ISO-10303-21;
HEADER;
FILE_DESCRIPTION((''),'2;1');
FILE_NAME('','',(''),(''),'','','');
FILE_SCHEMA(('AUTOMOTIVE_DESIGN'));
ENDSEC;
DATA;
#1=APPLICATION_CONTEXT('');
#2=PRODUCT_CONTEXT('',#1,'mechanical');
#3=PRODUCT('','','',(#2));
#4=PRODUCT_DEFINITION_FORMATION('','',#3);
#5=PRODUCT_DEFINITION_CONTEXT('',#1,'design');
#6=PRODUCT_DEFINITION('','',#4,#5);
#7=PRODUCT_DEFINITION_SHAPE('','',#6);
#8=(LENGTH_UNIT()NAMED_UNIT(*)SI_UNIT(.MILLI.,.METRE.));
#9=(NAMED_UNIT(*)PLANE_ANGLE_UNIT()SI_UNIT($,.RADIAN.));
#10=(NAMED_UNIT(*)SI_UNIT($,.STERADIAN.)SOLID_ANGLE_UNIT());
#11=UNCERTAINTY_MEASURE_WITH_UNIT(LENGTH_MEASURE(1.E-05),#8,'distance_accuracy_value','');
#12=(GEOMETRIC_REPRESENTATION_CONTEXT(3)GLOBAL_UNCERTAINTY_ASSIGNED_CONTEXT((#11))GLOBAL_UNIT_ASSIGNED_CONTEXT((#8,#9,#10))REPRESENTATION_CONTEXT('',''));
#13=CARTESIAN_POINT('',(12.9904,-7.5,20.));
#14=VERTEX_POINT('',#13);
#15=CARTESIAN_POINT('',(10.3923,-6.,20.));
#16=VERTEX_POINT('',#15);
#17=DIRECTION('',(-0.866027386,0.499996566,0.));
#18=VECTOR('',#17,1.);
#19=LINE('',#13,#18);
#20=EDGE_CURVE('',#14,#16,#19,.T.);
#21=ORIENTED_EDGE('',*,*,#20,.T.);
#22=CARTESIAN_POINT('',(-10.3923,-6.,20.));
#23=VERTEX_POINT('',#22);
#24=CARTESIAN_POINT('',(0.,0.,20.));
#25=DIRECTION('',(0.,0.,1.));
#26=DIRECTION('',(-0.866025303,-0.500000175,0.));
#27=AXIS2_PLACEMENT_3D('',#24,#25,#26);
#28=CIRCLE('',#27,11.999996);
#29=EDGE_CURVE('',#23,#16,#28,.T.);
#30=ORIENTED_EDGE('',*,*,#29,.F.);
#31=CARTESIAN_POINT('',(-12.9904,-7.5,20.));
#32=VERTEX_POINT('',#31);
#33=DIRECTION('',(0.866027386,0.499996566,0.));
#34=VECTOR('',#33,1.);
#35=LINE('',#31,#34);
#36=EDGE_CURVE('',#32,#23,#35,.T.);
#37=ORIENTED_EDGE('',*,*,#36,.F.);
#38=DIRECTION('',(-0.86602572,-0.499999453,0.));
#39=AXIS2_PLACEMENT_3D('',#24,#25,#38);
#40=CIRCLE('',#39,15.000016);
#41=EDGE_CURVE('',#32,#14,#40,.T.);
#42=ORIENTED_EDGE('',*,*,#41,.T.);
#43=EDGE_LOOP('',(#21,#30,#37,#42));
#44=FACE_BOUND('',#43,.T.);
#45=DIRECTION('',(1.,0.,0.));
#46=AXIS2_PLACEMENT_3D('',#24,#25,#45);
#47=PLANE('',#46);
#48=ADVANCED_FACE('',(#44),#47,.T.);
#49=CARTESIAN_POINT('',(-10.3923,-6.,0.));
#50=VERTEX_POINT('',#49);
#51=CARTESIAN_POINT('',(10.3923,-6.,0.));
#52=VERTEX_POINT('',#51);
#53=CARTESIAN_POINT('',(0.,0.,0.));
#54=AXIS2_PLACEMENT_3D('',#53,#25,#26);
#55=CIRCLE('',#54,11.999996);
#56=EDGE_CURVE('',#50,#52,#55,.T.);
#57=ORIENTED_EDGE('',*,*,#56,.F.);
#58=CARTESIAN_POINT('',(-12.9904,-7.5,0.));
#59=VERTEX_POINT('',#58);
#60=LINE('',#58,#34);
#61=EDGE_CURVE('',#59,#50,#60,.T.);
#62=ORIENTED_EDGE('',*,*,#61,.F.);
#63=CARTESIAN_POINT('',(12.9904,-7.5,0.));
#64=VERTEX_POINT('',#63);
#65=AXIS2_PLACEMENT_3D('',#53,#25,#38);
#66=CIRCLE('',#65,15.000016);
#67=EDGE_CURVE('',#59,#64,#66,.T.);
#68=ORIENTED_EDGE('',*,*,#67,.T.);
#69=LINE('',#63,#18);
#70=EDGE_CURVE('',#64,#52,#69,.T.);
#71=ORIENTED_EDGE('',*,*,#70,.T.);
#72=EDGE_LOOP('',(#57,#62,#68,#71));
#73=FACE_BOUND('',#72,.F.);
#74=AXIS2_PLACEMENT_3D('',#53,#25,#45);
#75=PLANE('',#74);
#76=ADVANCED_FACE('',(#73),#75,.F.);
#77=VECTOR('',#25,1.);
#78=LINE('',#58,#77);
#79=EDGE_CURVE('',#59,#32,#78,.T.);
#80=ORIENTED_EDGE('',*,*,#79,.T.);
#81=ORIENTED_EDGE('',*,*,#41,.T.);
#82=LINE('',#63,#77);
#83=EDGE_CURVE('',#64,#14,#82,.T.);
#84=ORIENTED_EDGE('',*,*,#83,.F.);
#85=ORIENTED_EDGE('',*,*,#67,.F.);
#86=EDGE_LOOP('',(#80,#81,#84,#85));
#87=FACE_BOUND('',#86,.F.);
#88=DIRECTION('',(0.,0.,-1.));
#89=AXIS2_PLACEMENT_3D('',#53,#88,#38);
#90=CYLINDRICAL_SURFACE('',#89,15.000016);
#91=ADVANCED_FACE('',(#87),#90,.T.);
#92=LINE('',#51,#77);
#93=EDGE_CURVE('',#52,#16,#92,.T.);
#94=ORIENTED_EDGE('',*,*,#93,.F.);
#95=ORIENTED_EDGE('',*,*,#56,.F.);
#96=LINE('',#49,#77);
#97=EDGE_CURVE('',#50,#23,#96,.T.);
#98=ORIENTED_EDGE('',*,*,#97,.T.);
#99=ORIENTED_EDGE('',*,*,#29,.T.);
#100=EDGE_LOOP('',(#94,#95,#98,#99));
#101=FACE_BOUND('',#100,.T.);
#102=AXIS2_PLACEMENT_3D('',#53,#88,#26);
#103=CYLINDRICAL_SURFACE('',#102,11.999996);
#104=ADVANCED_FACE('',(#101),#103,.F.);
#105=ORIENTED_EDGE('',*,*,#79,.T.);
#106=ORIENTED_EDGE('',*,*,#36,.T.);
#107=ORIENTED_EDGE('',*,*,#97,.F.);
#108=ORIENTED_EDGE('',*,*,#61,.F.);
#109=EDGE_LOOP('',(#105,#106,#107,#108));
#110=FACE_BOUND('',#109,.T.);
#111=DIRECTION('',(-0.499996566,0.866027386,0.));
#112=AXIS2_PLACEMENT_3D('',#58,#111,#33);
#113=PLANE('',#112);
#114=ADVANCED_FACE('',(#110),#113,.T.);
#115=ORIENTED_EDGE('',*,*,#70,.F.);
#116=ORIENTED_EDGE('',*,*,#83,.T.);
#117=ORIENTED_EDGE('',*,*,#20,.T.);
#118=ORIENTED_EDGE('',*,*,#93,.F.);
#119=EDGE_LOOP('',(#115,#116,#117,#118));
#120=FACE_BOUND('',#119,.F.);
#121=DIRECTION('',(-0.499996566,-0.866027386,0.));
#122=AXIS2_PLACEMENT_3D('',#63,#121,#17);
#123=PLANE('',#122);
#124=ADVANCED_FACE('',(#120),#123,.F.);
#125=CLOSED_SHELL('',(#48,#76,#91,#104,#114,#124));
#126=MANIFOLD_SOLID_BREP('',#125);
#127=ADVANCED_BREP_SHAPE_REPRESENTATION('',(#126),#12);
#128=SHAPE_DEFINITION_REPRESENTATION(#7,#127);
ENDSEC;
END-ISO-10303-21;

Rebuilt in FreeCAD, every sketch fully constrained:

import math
import FreeCAD as App
import Part
import Sketcher
from FreeCAD import Vector
Q = App.Units.Quantity

doc = App.newDocument("Part")
params = doc.addObject("Spreadsheet::Sheet", "Params")
for row, (alias, value) in enumerate([
    ("sketch1_radius", "15 mm"),
    ("sketch1_radius2", "12 mm"),
    ("pad1_length", "20 mm"),
], start=1):
    params.set(f"A{row}", alias)
    params.set(f"B{row}", "=" + value)
    params.setAlias(f"B{row}", alias)

body = doc.addObject("PartDesign::Body", "Body")

sketch1 = body.newObject("Sketcher::SketchObject", "Sketch")
sketch1.AttachmentSupport = (doc.getObject("XY_Plane"), [""])
sketch1.MapMode = "FlatFace"
sketch1.addGeometry([
    Part.LineSegment(Vector(-10.4, -6, 0), Vector(-13, -7.5, 0)),
    Part.ArcOfCircle(Part.Circle(Vector(0, 0, 0), Vector(0, 0, 1), 15), math.radians(-150), math.radians(-30)),
    Part.LineSegment(Vector(13, -7.5, 0), Vector(10.4, -6, 0)),
    Part.ArcOfCircle(Part.Circle(Vector(0, 0, 0), Vector(0, 0, 1), 12), math.radians(-150), math.radians(-30)),
], False)
sketch1.addConstraint([
    Sketcher.Constraint("Coincident", 0, 2, 1, 1),
    Sketcher.Constraint("Coincident", 1, 2, 2, 1),
    Sketcher.Constraint("Coincident", 2, 2, 3, 2),
    Sketcher.Constraint("Coincident", 3, 1, 0, 1),
    Sketcher.Constraint("Coincident", 1, 3, -1, 1),
    Sketcher.Constraint("Coincident", 3, 3, -1, 1),
    Sketcher.Constraint("Horizontal", 0, 2, 1, 2),
    Sketcher.Constraint("Horizontal", 2, 2, 3, 1),
    Sketcher.Constraint("Radius", 1, Q("15 mm")),
    Sketcher.Constraint("Radius", 3, Q("12 mm")),
    Sketcher.Constraint("Angle", 0, Q("-150.0002 deg")),
    Sketcher.Constraint("DistanceY", 2, 2, -1, 1, Q("6 mm")),
])
sketch1.setExpression("Constraints[8]", "Params.sketch1_radius")
sketch1.setExpression("Constraints[9]", "Params.sketch1_radius2")
pad1 = body.newObject("PartDesign::Pad", "Pad")
pad1.Profile = sketch1
pad1.setExpression("Length", "Params.pad1_length")

doc.recompute()
